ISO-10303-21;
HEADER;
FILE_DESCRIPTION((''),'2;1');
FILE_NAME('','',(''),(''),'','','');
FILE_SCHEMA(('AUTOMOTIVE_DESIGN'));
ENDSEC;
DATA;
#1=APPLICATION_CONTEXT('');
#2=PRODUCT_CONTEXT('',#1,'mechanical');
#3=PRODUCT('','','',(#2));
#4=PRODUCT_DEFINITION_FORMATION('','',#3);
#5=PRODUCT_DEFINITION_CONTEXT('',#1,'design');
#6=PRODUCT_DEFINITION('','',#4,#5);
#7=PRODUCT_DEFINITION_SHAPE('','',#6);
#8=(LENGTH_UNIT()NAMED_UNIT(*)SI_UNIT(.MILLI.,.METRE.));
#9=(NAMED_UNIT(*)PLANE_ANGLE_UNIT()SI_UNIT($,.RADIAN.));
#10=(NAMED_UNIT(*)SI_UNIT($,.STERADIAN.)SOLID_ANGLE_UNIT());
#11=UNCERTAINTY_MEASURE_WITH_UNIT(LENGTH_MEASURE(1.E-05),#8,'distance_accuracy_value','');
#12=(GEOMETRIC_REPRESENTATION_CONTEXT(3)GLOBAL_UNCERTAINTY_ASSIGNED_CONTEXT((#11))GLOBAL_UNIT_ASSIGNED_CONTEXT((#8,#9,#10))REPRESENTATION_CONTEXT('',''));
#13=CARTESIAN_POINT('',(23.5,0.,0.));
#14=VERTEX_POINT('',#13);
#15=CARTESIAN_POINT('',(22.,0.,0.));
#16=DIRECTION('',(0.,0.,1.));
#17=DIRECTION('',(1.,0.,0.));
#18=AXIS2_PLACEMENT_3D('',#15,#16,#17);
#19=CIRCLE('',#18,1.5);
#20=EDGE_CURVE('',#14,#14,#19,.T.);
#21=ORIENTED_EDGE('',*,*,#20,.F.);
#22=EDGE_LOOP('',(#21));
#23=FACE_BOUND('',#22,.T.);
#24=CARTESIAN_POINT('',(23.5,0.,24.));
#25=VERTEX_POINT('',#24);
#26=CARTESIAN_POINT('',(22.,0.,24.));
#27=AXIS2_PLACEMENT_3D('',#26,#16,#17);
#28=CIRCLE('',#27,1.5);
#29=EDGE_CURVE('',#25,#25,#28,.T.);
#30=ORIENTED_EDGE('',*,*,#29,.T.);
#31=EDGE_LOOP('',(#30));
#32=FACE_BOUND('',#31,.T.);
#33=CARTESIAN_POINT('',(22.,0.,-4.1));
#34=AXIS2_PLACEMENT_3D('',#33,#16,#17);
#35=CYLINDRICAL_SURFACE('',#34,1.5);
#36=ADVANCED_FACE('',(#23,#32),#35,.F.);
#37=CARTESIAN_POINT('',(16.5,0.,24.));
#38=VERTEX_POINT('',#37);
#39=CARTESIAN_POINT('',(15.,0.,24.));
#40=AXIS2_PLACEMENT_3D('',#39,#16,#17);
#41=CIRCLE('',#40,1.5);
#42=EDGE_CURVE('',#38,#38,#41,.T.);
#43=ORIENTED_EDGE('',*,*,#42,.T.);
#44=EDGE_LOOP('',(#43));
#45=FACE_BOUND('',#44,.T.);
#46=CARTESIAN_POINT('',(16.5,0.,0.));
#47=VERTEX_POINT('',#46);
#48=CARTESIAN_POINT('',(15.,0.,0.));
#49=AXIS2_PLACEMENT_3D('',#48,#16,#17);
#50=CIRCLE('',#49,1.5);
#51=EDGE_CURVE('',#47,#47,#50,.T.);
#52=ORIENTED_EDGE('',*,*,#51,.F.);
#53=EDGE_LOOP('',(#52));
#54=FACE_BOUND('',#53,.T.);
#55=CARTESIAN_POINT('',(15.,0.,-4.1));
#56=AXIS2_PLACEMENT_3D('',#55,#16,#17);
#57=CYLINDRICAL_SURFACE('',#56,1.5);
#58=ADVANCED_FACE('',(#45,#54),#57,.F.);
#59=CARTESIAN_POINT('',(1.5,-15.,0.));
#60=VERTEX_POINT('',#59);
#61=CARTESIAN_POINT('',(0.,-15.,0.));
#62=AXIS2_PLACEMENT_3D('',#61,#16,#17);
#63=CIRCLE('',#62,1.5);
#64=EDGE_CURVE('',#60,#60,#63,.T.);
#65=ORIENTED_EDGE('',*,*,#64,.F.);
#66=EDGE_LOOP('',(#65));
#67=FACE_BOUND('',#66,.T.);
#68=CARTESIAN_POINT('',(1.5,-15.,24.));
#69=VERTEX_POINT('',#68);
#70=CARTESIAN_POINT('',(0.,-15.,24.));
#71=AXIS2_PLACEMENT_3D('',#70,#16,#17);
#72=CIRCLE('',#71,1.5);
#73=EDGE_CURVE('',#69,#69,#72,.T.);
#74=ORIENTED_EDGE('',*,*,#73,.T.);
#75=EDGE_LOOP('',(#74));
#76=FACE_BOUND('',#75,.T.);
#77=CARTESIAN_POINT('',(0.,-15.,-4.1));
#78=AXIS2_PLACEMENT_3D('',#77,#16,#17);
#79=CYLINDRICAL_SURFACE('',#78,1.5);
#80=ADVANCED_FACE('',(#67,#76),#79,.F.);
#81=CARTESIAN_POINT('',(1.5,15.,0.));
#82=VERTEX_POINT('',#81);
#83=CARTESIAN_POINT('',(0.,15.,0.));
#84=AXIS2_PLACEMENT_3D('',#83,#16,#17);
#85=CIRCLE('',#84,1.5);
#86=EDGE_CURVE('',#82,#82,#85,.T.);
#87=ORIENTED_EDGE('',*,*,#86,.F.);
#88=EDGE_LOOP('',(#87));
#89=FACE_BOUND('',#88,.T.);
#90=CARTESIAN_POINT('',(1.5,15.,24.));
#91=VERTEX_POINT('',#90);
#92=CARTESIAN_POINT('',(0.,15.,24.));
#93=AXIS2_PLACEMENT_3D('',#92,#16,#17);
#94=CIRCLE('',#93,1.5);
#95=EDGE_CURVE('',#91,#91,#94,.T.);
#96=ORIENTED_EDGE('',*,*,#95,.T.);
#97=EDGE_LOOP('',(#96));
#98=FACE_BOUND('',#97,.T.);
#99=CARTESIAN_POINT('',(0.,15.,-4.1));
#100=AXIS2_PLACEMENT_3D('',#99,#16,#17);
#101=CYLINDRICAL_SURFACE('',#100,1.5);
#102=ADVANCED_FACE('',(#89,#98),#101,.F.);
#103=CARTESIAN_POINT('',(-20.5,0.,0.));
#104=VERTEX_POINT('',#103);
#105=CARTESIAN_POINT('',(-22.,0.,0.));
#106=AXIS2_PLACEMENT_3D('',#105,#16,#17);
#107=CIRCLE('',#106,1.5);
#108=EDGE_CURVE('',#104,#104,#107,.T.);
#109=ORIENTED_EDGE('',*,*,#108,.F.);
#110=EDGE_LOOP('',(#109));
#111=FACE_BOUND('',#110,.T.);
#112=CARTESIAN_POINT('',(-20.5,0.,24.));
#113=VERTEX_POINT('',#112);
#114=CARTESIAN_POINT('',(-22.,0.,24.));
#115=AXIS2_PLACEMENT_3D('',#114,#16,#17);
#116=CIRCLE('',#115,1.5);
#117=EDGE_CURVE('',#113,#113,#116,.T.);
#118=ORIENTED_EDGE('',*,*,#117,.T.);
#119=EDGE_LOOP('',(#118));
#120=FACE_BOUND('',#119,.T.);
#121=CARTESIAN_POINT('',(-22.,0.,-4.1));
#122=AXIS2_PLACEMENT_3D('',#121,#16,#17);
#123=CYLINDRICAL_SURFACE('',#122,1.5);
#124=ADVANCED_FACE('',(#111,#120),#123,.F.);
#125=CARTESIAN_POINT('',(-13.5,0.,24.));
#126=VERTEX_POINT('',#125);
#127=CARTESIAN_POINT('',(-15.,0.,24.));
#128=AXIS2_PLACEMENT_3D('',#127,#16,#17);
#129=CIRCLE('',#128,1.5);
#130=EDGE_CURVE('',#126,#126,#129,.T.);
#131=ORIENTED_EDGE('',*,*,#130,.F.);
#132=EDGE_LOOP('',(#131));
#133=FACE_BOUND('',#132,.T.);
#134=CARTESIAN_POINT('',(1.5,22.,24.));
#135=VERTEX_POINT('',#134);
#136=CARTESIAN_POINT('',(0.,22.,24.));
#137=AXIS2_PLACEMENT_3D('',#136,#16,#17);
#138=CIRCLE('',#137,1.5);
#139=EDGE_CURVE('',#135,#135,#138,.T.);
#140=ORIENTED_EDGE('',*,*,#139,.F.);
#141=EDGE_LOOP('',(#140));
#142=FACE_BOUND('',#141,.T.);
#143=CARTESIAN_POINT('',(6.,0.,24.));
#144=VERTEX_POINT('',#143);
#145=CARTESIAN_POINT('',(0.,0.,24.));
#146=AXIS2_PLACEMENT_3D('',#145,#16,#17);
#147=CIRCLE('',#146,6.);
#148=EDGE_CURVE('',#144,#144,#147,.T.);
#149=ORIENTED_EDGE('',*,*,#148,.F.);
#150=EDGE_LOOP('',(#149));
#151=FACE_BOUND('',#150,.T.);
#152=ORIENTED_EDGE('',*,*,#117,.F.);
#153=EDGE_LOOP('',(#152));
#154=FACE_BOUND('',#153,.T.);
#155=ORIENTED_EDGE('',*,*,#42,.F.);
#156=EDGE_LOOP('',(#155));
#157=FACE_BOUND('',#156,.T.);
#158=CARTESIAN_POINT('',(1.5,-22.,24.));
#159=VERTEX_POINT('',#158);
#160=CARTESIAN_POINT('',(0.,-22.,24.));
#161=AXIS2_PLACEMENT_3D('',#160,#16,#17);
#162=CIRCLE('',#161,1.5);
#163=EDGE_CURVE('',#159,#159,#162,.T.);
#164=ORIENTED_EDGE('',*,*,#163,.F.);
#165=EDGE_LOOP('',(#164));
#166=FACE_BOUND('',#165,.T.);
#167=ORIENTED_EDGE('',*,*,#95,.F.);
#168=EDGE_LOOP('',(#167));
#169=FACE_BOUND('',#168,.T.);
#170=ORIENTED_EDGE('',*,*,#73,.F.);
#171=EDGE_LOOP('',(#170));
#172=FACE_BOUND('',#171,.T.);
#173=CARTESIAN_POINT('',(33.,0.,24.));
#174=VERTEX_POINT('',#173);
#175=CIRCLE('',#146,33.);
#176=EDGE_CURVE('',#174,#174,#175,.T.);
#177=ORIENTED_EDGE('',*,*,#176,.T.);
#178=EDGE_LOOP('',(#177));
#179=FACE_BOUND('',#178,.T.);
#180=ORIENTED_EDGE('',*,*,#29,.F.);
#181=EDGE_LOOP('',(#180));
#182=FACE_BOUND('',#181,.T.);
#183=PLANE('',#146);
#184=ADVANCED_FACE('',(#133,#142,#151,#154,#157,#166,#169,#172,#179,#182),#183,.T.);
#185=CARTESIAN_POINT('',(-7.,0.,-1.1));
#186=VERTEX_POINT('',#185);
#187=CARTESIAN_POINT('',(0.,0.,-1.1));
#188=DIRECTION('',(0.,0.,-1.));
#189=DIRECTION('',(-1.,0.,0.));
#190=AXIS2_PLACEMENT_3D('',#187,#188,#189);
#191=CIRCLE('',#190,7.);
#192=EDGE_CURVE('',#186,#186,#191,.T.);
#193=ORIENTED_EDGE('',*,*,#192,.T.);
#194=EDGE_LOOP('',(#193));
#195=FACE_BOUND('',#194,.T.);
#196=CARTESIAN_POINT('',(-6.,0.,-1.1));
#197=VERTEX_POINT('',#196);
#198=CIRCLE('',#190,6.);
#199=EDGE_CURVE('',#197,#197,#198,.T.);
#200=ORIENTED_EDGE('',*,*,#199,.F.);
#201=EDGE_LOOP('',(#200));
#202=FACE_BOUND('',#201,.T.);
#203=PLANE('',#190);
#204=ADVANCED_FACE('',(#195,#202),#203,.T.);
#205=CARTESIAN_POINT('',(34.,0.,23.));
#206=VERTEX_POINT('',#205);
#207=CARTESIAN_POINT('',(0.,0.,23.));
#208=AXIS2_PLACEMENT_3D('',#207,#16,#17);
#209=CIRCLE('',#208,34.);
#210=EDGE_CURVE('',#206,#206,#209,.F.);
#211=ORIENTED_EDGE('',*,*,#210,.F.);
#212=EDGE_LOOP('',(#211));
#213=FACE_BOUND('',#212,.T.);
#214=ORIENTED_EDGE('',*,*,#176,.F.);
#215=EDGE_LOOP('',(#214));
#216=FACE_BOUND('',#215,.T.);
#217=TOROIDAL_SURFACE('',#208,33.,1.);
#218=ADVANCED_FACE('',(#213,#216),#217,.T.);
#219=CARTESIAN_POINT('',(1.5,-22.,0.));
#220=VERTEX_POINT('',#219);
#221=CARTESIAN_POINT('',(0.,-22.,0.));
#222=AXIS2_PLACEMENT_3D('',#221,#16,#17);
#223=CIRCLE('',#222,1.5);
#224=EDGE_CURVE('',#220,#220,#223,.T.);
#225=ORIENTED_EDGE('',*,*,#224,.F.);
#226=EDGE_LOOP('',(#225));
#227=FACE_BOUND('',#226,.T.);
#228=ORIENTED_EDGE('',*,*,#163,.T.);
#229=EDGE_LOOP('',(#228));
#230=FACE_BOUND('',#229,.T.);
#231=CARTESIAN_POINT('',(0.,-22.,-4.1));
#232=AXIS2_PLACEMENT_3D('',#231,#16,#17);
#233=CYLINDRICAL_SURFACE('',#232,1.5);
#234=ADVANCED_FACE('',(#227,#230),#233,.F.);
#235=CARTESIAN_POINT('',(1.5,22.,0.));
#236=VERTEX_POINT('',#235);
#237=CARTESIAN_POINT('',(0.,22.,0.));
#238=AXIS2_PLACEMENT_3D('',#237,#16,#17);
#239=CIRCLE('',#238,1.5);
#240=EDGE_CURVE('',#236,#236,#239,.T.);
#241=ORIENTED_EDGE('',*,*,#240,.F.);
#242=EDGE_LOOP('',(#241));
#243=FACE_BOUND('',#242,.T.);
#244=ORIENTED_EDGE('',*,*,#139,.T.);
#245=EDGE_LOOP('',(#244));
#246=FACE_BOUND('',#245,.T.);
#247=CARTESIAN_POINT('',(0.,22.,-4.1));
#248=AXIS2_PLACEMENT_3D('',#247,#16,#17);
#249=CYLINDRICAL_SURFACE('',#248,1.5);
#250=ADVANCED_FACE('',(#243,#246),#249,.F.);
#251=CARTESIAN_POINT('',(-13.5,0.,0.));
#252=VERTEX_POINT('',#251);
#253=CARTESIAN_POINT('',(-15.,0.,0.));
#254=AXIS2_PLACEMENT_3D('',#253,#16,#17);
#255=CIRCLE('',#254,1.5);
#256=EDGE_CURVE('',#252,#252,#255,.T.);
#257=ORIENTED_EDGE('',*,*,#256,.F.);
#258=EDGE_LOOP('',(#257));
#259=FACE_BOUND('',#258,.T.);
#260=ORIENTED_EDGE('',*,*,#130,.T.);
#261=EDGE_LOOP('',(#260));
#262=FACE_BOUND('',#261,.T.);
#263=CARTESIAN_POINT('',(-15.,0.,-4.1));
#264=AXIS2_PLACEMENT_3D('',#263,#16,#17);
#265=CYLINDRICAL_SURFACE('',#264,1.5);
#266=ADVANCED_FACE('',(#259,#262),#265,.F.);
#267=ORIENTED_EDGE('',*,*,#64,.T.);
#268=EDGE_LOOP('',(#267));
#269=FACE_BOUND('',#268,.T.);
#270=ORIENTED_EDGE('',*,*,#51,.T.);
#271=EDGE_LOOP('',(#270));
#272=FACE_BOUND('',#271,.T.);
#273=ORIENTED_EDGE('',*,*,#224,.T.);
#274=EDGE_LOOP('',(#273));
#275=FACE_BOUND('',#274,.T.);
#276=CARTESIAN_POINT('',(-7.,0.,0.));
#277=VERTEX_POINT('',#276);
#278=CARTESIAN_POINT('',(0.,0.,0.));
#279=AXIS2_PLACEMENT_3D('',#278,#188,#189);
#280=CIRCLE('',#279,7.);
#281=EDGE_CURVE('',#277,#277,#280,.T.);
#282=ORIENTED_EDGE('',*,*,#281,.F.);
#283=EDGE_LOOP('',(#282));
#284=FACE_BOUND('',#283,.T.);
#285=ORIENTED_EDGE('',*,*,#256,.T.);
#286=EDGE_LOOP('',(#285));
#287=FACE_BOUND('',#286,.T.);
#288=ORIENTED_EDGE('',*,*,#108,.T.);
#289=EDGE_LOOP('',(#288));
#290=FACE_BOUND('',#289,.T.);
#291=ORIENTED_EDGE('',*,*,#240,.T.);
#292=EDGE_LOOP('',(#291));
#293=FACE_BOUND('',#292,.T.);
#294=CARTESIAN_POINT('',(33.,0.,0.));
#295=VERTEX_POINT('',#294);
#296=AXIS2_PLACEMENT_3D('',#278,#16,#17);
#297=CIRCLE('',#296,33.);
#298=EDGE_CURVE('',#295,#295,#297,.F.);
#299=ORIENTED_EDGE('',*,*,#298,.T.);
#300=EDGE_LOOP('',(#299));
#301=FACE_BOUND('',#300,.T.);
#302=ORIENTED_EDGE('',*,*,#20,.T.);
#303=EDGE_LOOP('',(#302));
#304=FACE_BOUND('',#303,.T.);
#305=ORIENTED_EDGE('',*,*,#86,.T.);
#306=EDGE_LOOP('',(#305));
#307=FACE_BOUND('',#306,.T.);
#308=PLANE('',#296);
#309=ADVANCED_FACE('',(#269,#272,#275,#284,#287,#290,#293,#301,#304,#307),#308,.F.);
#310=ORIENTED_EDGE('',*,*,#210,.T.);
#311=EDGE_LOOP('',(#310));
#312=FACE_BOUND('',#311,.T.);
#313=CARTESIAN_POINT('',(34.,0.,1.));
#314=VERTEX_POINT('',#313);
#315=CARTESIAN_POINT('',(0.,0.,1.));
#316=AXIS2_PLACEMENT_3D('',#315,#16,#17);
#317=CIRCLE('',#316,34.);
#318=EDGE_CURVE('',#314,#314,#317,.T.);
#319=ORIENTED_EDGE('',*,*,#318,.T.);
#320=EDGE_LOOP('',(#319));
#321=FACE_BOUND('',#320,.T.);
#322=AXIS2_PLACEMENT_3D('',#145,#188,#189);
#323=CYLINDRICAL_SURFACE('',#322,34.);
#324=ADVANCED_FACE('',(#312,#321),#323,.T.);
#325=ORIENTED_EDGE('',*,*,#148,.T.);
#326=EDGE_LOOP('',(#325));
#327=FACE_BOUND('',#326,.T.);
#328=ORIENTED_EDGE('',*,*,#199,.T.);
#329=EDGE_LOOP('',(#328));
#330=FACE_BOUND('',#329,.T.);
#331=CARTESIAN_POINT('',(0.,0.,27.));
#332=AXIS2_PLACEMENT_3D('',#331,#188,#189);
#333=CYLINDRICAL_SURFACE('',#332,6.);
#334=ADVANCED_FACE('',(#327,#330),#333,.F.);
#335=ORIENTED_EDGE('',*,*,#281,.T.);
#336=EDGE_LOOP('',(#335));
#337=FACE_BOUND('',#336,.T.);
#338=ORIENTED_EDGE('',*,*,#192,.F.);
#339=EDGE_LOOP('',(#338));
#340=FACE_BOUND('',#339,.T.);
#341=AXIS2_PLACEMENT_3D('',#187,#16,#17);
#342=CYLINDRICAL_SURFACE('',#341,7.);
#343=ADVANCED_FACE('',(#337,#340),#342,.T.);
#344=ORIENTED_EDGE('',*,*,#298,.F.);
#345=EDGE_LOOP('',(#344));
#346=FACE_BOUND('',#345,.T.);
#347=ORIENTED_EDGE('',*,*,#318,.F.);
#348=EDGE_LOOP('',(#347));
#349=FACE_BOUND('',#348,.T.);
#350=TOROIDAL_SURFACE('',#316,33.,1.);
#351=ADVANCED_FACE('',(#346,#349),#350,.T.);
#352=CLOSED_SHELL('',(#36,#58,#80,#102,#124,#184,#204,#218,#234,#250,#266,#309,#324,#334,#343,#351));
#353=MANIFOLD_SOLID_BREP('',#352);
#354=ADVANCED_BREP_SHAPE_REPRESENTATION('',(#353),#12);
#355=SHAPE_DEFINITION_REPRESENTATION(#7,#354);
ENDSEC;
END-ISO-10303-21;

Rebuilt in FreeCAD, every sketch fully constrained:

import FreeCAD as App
import Part
import Sketcher


def edges_at(feature, points):
    """Names of the edges that pass closest to the given points."""
    edges = feature.Shape.Edges
    near = lambda p: min(range(len(edges)), key=lambda i: edges[i].distToShape(Part.Vertex(*p))[0])
    return sorted({f"Edge{near(p) + 1}" for p in points})

doc = App.newDocument("Part")
body = doc.addObject("PartDesign::Body", "Body")

# Sketch on XY plane
sketch1 = doc.addObject("Sketcher::SketchObject", "Sketch")
body.addObject(sketch1)
sketch1.AttachmentSupport = (doc.XY_Plane, [""])
sketch1.MapMode = "FlatFace"
sketch1.addGeometry(Part.Circle(App.Vector(0, 0, 0), App.Vector(0, 0, 1), 34), False)
sketch1.addConstraint(Sketcher.Constraint("Coincident", 0, 3, -1, 1))
sketch1.addConstraint(Sketcher.Constraint("Diameter", 0, 68.0))
pad1 = doc.addObject("PartDesign::Pad", "Pad")
body.addObject(pad1)
pad1.Profile = sketch1
pad1.Length = 24

# Sketch on XY plane
sketch2 = doc.addObject("Sketcher::SketchObject", "Sketch001")
body.addObject(sketch2)
sketch2.AttachmentSupport = (doc.XY_Plane, [""])
sketch2.MapMode = "FlatFace"
sketch2.addGeometry(Part.Circle(App.Vector(0, 0, 0), App.Vector(0, 0, 1), 7), False)
sketch2.addConstraint(Sketcher.Constraint("Coincident", 0, 3, -1, 1))
sketch2.addConstraint(Sketcher.Constraint("Diameter", 0, 14.0))
pad2 = doc.addObject("PartDesign::Pad", "Pad001")
body.addObject(pad2)
pad2.Profile = sketch2
pad2.Length = 1.1
pad2.Reversed = True

# Sketch on XY plane
sketch3 = doc.addObject("Sketcher::SketchObject", "Sketch002")
body.addObject(sketch3)
sketch3.AttachmentSupport = (doc.XY_Plane, [""])
sketch3.MapMode = "FlatFace"
sketch3.AttachmentOffset = App.Placement(App.Vector(0, 0, -1.1), App.Rotation())
sketch3.addGeometry(Part.Circle(App.Vector(0, 0, 0), App.Vector(0, 0, 1), 6), False)
sketch3.addConstraint(Sketcher.Constraint("Coincident", 0, 3, -1, 1))
sketch3.addConstraint(Sketcher.Constraint("Diameter", 0, 12.0))
pocket1 = doc.addObject("PartDesign::Pocket", "Pocket")
body.addObject(pocket1)
pocket1.Profile = sketch3
pocket1.Length = 28.1
pocket1.Reversed = True

# Sketch on XY plane
sketch4 = doc.addObject("Sketcher::SketchObject", "Sketch003")
body.addObject(sketch4)
sketch4.AttachmentSupport = (doc.XY_Plane, [""])
sketch4.MapMode = "FlatFace"
sketch4.AttachmentOffset = App.Placement(App.Vector(0, 0, 24), App.Rotation())
sketch4.addGeometry(Part.Circle(App.Vector(0, 22, 0), App.Vector(0, 0, 1), 1.5), False)
sketch4.addGeometry(Part.Circle(App.Vector(0, -22, 0), App.Vector(0, 0, 1), 1.5), False)
sketch4.addGeometry(Part.Circle(App.Vector(-22, 0, 0), App.Vector(0, 0, 1), 1.5), False)
sketch4.addGeometry(Part.Circle(App.Vector(22, 0, 0), App.Vector(0, 0, 1), 1.5), False)
sketch4.addGeometry(Part.Circle(App.Vector(0, 15, 0), App.Vector(0, 0, 1), 1.5), False)
sketch4.addGeometry(Part.Circle(App.Vector(-15, 0, 0), App.Vector(0, 0, 1), 1.5), False)
sketch4.addGeometry(Part.Circle(App.Vector(15, 0, 0), App.Vector(0, 0, 1), 1.5), False)
sketch4.addGeometry(Part.Circle(App.Vector(0, -15, 0), App.Vector(0, 0, 1), 1.5), False)
sketch4.addConstraint(Sketcher.Constraint("Equal", 0, 1))
sketch4.addConstraint(Sketcher.Constraint("Equal", 1, 2))
sketch4.addConstraint(Sketcher.Constraint("Equal", 2, 3))
sketch4.addConstraint(Sketcher.Constraint("Equal", 3, 4))
sketch4.addConstraint(Sketcher.Constraint("Equal", 4, 5))
sketch4.addConstraint(Sketcher.Constraint("Equal", 5, 6))
sketch4.addConstraint(Sketcher.Constraint("Equal", 6, 7))
sketch4.addConstraint(Sketcher.Constraint("Symmetric", 0, 3, 1, 3, -1, 1))
sketch4.addConstraint(Sketcher.Constraint("Symmetric", 2, 3, 3, 3, -1, 1))
sketch4.addConstraint(Sketcher.Constraint("Symmetric", 5, 3, 6, 3, -1, 1))
sketch4.addConstraint(Sketcher.Constraint("Symmetric", 4, 3, 7, 3, -1, 1))
sketch4.addConstraint(Sketcher.Constraint("PointOnObject", 0, 3, -2))
sketch4.addConstraint(Sketcher.Constraint("PointOnObject", 2, 3, -1))
sketch4.addConstraint(Sketcher.Constraint("PointOnObject", 4, 3, -2))
sketch4.addConstraint(Sketcher.Constraint("PointOnObject", 5, 3, -1))
sketch4.addConstraint(Sketcher.Constraint("Diameter", 0, 3.0))
sketch4.addConstraint(Sketcher.Constraint("DistanceY", -1, 1, 0, 3, 22.0))
sketch4.addConstraint(Sketcher.Constraint("DistanceX", 2, 3, -1, 1, 22.0))
sketch4.addConstraint(Sketcher.Constraint("DistanceY", -1, 1, 4, 3, 15.0))
sketch4.addConstraint(Sketcher.Constraint("DistanceX", 5, 3, -1, 1, 15.0))
pocket2 = doc.addObject("PartDesign::Pocket", "Pocket001")
body.addObject(pocket2)
pocket2.Profile = sketch4
pocket2.Length = 28.1
doc.recompute()

fillet = doc.addObject("PartDesign::Fillet", "Fillet")
body.addObject(fillet)
fillet.Base = (pocket2, edges_at(pocket2, [(-34, 0, 0)]))
fillet.Radius = 1
doc.recompute()

fillet2 = doc.addObject("PartDesign::Fillet", "Fillet001")
body.addObject(fillet2)
fillet2.Base = (fillet, edges_at(fillet, [(-34, 0, 24)]))
fillet2.Radius = 1

doc.recompute()
